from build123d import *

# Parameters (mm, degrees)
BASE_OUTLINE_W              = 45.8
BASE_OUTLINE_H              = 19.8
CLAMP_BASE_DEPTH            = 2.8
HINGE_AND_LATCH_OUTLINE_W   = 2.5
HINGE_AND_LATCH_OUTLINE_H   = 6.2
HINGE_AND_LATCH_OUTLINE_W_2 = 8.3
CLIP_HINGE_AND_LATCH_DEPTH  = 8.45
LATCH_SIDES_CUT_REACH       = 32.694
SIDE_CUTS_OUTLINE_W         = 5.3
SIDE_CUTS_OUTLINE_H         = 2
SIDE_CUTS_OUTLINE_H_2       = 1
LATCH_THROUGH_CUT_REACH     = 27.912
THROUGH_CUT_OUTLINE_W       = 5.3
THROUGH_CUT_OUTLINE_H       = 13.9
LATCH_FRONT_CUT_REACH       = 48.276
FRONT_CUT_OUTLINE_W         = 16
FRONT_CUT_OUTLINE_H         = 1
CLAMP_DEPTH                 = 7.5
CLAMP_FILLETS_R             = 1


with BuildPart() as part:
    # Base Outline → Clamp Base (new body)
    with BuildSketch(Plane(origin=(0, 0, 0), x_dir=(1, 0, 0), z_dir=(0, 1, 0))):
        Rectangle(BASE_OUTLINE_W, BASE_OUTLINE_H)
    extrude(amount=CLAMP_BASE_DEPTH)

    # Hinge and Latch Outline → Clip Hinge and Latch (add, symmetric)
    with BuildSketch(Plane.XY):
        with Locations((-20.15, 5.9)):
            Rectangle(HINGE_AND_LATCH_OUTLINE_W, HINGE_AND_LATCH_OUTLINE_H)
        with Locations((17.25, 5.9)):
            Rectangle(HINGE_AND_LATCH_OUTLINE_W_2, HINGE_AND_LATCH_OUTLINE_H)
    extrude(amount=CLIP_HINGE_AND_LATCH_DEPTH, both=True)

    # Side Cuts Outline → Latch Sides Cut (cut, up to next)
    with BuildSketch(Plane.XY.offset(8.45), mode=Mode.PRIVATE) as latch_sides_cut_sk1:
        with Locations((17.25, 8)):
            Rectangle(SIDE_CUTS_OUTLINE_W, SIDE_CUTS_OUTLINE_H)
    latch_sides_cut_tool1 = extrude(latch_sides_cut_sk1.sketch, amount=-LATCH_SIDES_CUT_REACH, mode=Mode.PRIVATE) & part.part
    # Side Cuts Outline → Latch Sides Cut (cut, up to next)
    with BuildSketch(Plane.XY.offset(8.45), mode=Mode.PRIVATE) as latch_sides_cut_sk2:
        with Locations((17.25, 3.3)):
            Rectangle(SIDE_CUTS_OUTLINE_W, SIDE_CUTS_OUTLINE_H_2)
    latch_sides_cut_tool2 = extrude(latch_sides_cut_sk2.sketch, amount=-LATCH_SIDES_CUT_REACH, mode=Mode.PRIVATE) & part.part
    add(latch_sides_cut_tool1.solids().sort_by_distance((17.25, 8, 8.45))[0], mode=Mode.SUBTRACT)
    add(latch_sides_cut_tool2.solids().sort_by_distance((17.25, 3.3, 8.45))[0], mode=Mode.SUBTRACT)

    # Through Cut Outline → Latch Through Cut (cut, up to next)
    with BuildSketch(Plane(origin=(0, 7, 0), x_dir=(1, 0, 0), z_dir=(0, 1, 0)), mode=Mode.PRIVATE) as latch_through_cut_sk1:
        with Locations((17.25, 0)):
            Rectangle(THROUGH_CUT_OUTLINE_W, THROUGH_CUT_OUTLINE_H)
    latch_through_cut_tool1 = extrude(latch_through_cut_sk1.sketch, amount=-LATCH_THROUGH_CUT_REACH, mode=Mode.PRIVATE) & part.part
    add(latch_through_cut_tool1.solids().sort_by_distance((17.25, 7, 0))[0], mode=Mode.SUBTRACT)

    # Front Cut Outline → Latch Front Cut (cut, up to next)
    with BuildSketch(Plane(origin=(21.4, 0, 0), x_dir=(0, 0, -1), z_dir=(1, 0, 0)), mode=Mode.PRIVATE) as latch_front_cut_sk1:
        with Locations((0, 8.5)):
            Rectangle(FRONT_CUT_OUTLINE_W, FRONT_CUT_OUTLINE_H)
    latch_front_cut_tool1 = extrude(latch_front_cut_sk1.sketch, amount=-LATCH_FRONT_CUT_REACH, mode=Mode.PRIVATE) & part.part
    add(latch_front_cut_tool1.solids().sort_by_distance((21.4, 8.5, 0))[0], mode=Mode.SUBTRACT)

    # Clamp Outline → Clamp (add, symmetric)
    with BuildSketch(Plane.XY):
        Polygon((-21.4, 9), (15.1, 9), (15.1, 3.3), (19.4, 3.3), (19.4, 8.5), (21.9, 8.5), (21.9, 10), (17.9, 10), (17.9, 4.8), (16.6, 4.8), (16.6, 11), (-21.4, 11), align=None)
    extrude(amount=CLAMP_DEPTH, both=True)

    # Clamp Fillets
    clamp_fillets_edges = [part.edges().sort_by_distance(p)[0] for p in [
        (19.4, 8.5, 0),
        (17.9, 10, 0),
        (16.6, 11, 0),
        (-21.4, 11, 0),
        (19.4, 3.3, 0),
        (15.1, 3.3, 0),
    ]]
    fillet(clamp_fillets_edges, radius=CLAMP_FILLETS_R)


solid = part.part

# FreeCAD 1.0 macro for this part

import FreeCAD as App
import Part
import Sketcher


def edges_at(feature, points):
    """Names of the edges that pass closest to the given points."""
    edges = feature.Shape.Edges
    near = lambda p: min(range(len(edges)), key=lambda i: edges[i].distToShape(Part.Vertex(*p))[0])
    return sorted({f"Edge{near(p) + 1}" for p in points})


def add_polygon(sketch, points):
    """Adds a closed chain of lines whose ends are joined by coincident constraints."""
    first, n = sketch.GeometryCount, len(points)
    for a, b in zip(points, points[1:] + points[:1]):
        sketch.addGeometry(Part.LineSegment(App.Vector(*a, 0), App.Vector(*b, 0)), False)
    for i in range(n):
        sketch.addConstraint(Sketcher.Constraint("Coincident", first + i, 2, first + (i + 1) % n, 1))

doc = App.newDocument("Part")
body = doc.addObject("PartDesign::Body", "Body")

sketch1 = doc.addObject("Sketcher::SketchObject", "Sketch")
body.addObject(sketch1)
sketch1.AttachmentSupport = (doc.XZ_Plane, [""])
sketch1.MapMode = "FlatFace"
add_polygon(sketch1, [(-23, -10), (-23, 10), (23, 10), (23, -10)])
sketch1.addConstraint([
    Sketcher.Constraint("Vertical", 0),
    Sketcher.Constraint("Horizontal", 1),
    Sketcher.Constraint("Vertical", 2),
    Sketcher.Constraint("Horizontal", 3),
    Sketcher.Constraint("Symmetric", 0, 2, 2, 2, -1, 1),
    Sketcher.Constraint("DistanceX", 1, 1, 1, 2, 45.8),
    Sketcher.Constraint("DistanceY", 0, 1, 0, 2, 19.8),
])
pad1 = doc.addObject("PartDesign::Pad", "Pad")
body.addObject(pad1)
pad1.Profile = sketch1
pad1.Length = 2.8
pad1.Reversed = True

sketch2 = doc.addObject("Sketcher::SketchObject", "Sketch001")
body.addObject(sketch2)
sketch2.AttachmentSupport = (doc.XY_Plane, [""])
sketch2.MapMode = "FlatFace"
add_polygon(sketch2, [(-21.4, 9), (-21.4, 2.8), (-18.9, 2.8), (-18.9, 9)])
add_polygon(sketch2, [(13.1, 9), (13.1, 2.8), (21.4, 2.8), (21.4, 9)])
sketch2.addConstraint([
    Sketcher.Constraint("Vertical", 0),
    Sketcher.Constraint("Horizontal", 1),
    Sketcher.Constraint("Vertical", 2),
    Sketcher.Constraint("Horizontal", 3),
    Sketcher.Constraint("Vertical", 4),
    Sketcher.Constraint("Horizontal", 5),
    Sketcher.Constraint("Vertical", 6),
    Sketcher.Constraint("Horizontal", 7),
    Sketcher.Constraint("Symmetric", 0, 2, 5, 2, -2),
    Sketcher.Constraint("Horizontal", 3, 2, 6, 2),
    Sketcher.Constraint("DistanceX", 1, 1, 1, 2, 2.5),
    Sketcher.Constraint("DistanceX", 5, 1, 5, 2, 8.3),
    Sketcher.Constraint("DistanceY", 0, 2, 0, 1, 6.2),
    Sketcher.Constraint("DistanceY", -1, 1, 2, 2, 9.0),
    Sketcher.Constraint("DistanceX", 1, 2, 4, 2, 32.0),
])
pad2 = doc.addObject("PartDesign::Pad", "Pad001")
body.addObject(pad2)
pad2.Profile = sketch2
pad2.Length = 16.9
pad2.Midplane = True

sketch3 = doc.addObject("Sketcher::SketchObject", "Sketch002")
body.addObject(sketch3)
sketch3.AttachmentSupport = (doc.XY_Plane, [""])
sketch3.MapMode = "FlatFace"
sketch3.AttachmentOffset = App.Placement(App.Vector(0, 0, 8.45), App.Rotation())
add_polygon(sketch3, [(14.6, 9), (14.6, 7), (19.9, 7), (19.9, 9)])
sketch3.addConstraint([
    Sketcher.Constraint("Vertical", 0),
    Sketcher.Constraint("Horizontal", 1),
    Sketcher.Constraint("Vertical", 2),
    Sketcher.Constraint("Horizontal", 3),
    Sketcher.Constraint("DistanceY", 0, 2, 0, 1, 2.0),
    Sketcher.Constraint("DistanceX", 1, 1, 1, 2, 5.3),
    Sketcher.Constraint("DistanceY", -1, 1, 0, 2, 7.0),
    Sketcher.Constraint("DistanceX", -1, 1, 0, 2, 14.6),
])
pocket1 = doc.addObject("PartDesign::Pocket", "Pocket")
body.addObject(pocket1)
pocket1.Profile = sketch3
pocket1.Type = "UpToFirst"

sketch4 = doc.addObject("Sketcher::SketchObject", "Sketch003")
body.addObject(sketch4)
sketch4.AttachmentSupport = (doc.XY_Plane, [""])
sketch4.MapMode = "FlatFace"
sketch4.AttachmentOffset = App.Placement(App.Vector(0, 0, 8.45), App.Rotation())
add_polygon(sketch4, [(14.6, 3.8), (14.6, 2.8), (19.9, 2.8), (19.9, 3.8)])
sketch4.addConstraint([
    Sketcher.Constraint("Vertical", 0),
    Sketcher.Constraint("Horizontal", 1),
    Sketcher.Constraint("Vertical", 2),
    Sketcher.Constraint("Horizontal", 3),
    Sketcher.Constraint("DistanceY", 0, 2, 0, 1, 1.0),
    Sketcher.Constraint("DistanceX", 1, 1, 1, 2, 5.3),
    Sketcher.Constraint("DistanceX", -1, 1, 0, 2, 14.6),
    Sketcher.Constraint("DistanceY", -1, 1, 0, 2, 2.8),
])
pocket2 = doc.addObject("PartDesign::Pocket", "Pocket001")
body.addObject(pocket2)
pocket2.Profile = sketch4
pocket2.Type = "UpToFirst"

sketch5 = doc.addObject("Sketcher::SketchObject", "Sketch004")
body.addObject(sketch5)
sketch5.AttachmentSupport = (doc.XZ_Plane, [""])
sketch5.MapMode = "FlatFace"
sketch5.AttachmentOffset = App.Placement(App.Vector(0, 0, -7), App.Rotation())
add_polygon(sketch5, [(15, -7), (15, 7), (20, 7), (20, -7)])
sketch5.addConstraint([
    Sketcher.Constraint("Vertical", 0),
    Sketcher.Constraint("Horizontal", 1),
    Sketcher.Constraint("Vertical", 2),
    Sketcher.Constraint("Horizontal", 3),
    Sketcher.Constraint("DistanceX", 1, 1, 1, 2, 5.3),
    Sketcher.Constraint("DistanceY", 0, 1, 0, 2, 13.9),
    Sketcher.Constraint("DistanceX", -1, 1, 0, 2, 14.6),
    Sketcher.Constraint("DistanceY", -1, 1, 0, 2, 6.95),
])
pocket3 = doc.addObject("PartDesign::Pocket", "Pocket002")
body.addObject(pocket3)
pocket3.Profile = sketch5
pocket3.Type = "UpToFirst"
pocket3.Reversed = True

sketch6 = doc.addObject("Sketcher::SketchObject", "Sketch005")
body.addObject(sketch6)
sketch6.AttachmentSupport = (doc.YZ_Plane, [""])
sketch6.MapMode = "FlatFace"
sketch6.AttachmentOffset = App.Placement(App.Vector(0, 0, 21.4), App.Rotation())
add_polygon(sketch6, [(9, 8), (8, 8), (8, -8), (9, -8)])
sketch6.addConstraint([
    Sketcher.Constraint("Horizontal", 0),
    Sketcher.Constraint("Vertical", 1),
    Sketcher.Constraint("Horizontal", 2),
    Sketcher.Constraint("Vertical", 3),
    Sketcher.Constraint("DistanceX", 0, 2, 0, 1, 1.0),
    Sketcher.Constraint("DistanceY", 1, 2, 1, 1, 16.0),
    Sketcher.Constraint("DistanceX", -1, 1, 0, 2, 8.0),
    Sketcher.Constraint("DistanceY", -1, 1, 0, 2, 8.0),
])
pocket4 = doc.addObject("PartDesign::Pocket", "Pocket003")
body.addObject(pocket4)
pocket4.Profile = sketch6
pocket4.Type = "UpToFirst"

sketch7 = doc.addObject("Sketcher::SketchObject", "Sketch006")
body.addObject(sketch7)
sketch7.AttachmentSupport = (doc.XY_Plane, [""])
sketch7.MapMode = "FlatFace"
add_polygon(sketch7, [(-21.4, 9), (15.1, 9), (15.1, 3.3), (19.4, 3.3), (19.4, 8.5), (21.9, 8.5), (21.9, 10), (17.9, 10), (17.9, 4.8), (16.6, 4.8), (16.6, 11), (-21.4, 11)])
sketch7.addConstraint([
    Sketcher.Constraint("Horizontal", 0),
    Sketcher.Constraint("Vertical", 1),
    Sketcher.Constraint("Horizontal", 2),
    Sketcher.Constraint("Vertical", 3),
    Sketcher.Constraint("Horizontal", 4),
    Sketcher.Constraint("Vertical", 5),
    Sketcher.Constraint("Horizontal", 6),
    Sketcher.Constraint("Vertical", 7),
    Sketcher.Constraint("Horizontal", 8),
    Sketcher.Constraint("Vertical", 9),
    Sketcher.Constraint("Horizontal", 10),
    Sketcher.Constraint("Vertical", 11),
    Sketcher.Constraint("Equal", 3, 7),
    Sketcher.Constraint("DistanceX", 6, 2, 6, 1, 4.0),
    Sketcher.Constraint("DistanceX", 10, 2, 10, 1, 38.0),
    Sketcher.Constraint("DistanceY", 11, 2, 11, 1, 2.0),
    Sketcher.Constraint("DistanceX", 0, 1, 0, 2, 36.5),
    Sketcher.Constraint("DistanceX", 2, 1, 2, 2, 4.3),
    Sketcher.Constraint("DistanceX", 4, 1, 4, 2, 2.5),
    Sketcher.Constraint("DistanceY", 1, 2, 1, 1, 5.7),
    Sketcher.Constraint("DistanceY", 3, 1, 3, 2, 5.2),
    Sketcher.Constraint("DistanceY", 5, 1, 5, 2, 1.5),
    Sketcher.Constraint("DistanceY", -1, 1, 0, 2, 9.0),
    Sketcher.Constraint("DistanceX", -1, 1, 0, 2, 15.1),
])
pad3 = doc.addObject("PartDesign::Pad", "Pad002")
body.addObject(pad3)
pad3.Profile = sketch7
pad3.Length = 15
pad3.Midplane = True
doc.recompute()

fillet = doc.addObject("PartDesign::Fillet", "Fillet")
body.addObject(fillet)
fillet.Base = (pad3, edges_at(pad3, [
    (19.4, 8.5, 0),
    (17.9, 10, 0),
    (16.6, 11, 0),
    (-21.4, 11, 0),
    (19.4, 3.3, 0),
    (15.1, 3.3, 0),
]))
fillet.Radius = 1

doc.recompute()
